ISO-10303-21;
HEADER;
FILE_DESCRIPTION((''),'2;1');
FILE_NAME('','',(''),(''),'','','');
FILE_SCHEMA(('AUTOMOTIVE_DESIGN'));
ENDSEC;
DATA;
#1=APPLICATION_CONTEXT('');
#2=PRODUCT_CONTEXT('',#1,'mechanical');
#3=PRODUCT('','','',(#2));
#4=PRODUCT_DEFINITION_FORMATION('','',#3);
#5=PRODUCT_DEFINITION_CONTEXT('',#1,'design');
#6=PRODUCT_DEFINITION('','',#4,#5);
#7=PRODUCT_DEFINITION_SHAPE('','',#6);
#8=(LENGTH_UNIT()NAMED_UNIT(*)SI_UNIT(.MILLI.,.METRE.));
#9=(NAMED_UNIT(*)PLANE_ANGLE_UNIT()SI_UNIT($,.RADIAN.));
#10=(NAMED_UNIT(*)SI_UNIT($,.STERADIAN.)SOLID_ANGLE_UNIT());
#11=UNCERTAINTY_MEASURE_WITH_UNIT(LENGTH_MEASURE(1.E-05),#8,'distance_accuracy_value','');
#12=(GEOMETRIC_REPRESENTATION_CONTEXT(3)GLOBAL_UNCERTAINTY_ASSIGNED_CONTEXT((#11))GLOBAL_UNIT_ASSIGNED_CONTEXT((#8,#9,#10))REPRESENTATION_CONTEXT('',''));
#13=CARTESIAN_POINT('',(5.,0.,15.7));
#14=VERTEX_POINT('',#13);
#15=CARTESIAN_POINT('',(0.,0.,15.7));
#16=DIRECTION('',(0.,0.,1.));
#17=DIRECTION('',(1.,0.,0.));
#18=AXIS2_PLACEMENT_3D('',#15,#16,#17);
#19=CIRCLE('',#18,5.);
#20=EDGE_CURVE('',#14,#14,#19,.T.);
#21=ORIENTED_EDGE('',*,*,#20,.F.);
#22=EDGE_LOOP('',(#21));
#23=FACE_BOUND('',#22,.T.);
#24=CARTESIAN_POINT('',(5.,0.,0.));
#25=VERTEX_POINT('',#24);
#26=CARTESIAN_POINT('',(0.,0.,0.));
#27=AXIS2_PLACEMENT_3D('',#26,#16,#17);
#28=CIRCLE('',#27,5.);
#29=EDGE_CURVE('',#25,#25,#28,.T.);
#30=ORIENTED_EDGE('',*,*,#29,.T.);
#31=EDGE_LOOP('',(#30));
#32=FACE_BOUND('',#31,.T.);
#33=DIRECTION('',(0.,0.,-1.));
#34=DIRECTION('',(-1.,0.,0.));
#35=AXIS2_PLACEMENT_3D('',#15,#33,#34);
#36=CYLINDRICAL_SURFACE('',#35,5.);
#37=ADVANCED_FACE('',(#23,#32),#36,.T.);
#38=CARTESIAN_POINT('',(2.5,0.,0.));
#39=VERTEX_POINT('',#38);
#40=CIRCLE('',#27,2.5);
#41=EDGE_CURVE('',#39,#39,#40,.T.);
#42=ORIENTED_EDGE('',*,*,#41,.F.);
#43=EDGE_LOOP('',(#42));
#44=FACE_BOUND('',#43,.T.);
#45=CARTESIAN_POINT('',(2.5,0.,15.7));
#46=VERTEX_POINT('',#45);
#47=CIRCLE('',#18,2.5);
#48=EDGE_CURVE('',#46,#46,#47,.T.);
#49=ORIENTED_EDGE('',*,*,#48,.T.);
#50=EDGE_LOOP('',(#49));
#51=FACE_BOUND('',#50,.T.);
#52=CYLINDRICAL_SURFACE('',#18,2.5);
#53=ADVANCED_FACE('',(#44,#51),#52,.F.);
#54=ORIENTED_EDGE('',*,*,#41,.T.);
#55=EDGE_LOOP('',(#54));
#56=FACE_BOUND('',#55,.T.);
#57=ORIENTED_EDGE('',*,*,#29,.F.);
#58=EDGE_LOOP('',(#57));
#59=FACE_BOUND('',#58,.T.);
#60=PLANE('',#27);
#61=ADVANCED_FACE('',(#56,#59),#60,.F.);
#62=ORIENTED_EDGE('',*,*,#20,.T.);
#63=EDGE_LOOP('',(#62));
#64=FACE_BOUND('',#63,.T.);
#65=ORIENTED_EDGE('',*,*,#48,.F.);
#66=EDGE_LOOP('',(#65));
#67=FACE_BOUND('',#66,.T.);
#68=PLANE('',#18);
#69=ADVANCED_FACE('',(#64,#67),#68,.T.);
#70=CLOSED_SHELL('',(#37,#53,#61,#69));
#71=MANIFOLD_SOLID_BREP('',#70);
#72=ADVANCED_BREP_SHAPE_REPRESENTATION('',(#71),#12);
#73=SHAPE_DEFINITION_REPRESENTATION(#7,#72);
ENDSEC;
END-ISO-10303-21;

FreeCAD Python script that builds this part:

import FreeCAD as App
import Part
import Sketcher
from FreeCAD import Vector
Q = App.Units.Quantity

doc = App.newDocument("Part")
body = doc.addObject("PartDesign::Body", "Body")

# Sketch on XY plane
sketch1 = body.newObject("Sketcher::SketchObject", "Sketch")
sketch1.AttachmentSupport = (doc.getObject("XY_Plane"), [""])
sketch1.MapMode = "FlatFace"
sketch1.addGeometry(Part.Circle(Vector(0, 0, 0), Vector(0, 0, 1), 5), False)
sketch1.addConstraint(Sketcher.Constraint("Coincident", 0, 3, -1, 1))
sketch1.addConstraint(Sketcher.Constraint("Diameter", 0, Q("10 mm")))
pad1 = body.newObject("PartDesign::Pad", "Pad")
pad1.Profile = sketch1
pad1.Length = 15.7

# Sketch on XY plane
sketch2 = body.newObject("Sketcher::SketchObject", "Sketch001")
sketch2.AttachmentSupport = (doc.getObject("XY_Plane"), [""])
sketch2.MapMode = "FlatFace"
sketch2.AttachmentOffset = App.Placement(Vector(0, 0, 15.7), App.Rotation())
sketch2.addGeometry(Part.Circle(Vector(0, 0, 0), Vector(0, 0, 1), 2.5), False)
sketch2.addConstraint(Sketcher.Constraint("Coincident", 0, 3, -1, 1))
sketch2.addConstraint(Sketcher.Constraint("Diameter", 0, Q("5 mm")))
doc.recompute()
hole = body.newObject("PartDesign::Hole", "Hole")
hole.Profile = sketch2
hole.ThreadType = "None"
hole.Diameter = 5
hole.DepthType = "Dimension"
hole.Depth = 15.7
hole.DrillPoint = "Flat"

doc.recompute()
